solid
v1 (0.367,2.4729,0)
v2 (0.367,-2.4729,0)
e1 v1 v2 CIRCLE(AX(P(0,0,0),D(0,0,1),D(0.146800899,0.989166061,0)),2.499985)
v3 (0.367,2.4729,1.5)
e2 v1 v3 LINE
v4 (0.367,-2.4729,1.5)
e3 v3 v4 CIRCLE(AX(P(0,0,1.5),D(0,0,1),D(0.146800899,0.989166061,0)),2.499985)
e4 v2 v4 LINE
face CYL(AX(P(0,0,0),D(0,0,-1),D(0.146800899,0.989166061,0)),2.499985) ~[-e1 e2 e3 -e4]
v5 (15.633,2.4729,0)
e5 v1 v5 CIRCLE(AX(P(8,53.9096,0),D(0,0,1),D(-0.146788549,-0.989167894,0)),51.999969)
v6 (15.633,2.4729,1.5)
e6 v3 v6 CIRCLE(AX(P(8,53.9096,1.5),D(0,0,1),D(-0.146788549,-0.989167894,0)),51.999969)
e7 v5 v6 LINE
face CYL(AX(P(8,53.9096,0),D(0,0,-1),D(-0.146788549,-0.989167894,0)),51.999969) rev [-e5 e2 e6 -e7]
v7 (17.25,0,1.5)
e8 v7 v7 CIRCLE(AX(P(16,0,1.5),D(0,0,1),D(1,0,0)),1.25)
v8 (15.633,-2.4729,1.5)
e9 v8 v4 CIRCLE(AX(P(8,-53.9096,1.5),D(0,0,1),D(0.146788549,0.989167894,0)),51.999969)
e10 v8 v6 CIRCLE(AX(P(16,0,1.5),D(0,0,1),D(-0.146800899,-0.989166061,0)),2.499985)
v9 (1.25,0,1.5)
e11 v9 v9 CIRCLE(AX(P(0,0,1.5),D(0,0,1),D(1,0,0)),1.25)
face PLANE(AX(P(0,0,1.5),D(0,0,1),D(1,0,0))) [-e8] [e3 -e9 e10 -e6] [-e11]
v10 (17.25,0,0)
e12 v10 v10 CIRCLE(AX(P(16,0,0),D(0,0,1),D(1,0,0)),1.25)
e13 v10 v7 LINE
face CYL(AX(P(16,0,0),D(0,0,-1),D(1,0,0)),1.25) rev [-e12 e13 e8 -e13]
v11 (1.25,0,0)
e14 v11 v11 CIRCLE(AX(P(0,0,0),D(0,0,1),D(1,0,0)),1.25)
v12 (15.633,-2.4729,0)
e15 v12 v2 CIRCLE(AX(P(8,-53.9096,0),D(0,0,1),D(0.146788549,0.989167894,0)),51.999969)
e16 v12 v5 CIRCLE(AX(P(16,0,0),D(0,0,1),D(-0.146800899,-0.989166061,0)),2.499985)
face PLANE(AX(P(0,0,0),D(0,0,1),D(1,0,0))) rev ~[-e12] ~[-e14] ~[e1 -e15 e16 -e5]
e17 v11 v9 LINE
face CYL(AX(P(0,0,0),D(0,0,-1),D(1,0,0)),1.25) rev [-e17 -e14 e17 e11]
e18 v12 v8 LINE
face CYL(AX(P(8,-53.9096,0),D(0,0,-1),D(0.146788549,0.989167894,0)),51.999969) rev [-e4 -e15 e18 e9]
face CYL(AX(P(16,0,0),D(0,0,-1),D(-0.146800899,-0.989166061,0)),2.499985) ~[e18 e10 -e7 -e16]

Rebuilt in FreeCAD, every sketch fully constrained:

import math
import FreeCAD as App
import Part
import Sketcher
from FreeCAD import Vector

doc = App.newDocument("Part")
body = doc.addObject("PartDesign::Body", "Body")

sketch1 = body.newObject("Sketcher::SketchObject", "Sketch")
sketch1.AttachmentSupport = (doc.getObject("XY_Plane"), [""])
sketch1.MapMode = "FlatFace"
sketch1.addGeometry([
    Part.ArcOfCircle(Part.Circle(Vector(8, 53.9, 0), Vector(0, 0, 1), 52), math.radians(-98.44), math.radians(-81.56)),
    Part.ArcOfCircle(Part.Circle(Vector(0, 0, 0), Vector(0, 0, 1), 2.5), math.radians(82), math.radians(278)),
    Part.ArcOfCircle(Part.Circle(Vector(8, -53.9, 0), Vector(0, 0, 1), 52), math.radians(81.56), math.radians(98.44)),
    Part.ArcOfCircle(Part.Circle(Vector(16, 0, 0), Vector(0, 0, 1), 2.5), math.radians(-98), math.radians(98)),
    Part.Circle(Vector(0, 0, 0), Vector(0, 0, 1), 1.2),
    Part.Circle(Vector(16, 0, 0), Vector(0, 0, 1), 1.2),
], False)
sketch1.addConstraint([
    Sketcher.Constraint("Tangent", 0, 1, 1, 1),
    Sketcher.Constraint("Tangent", 1, 2, 2, 2),
    Sketcher.Constraint("Tangent", 2, 1, 3, 1),
    Sketcher.Constraint("Tangent", 3, 2, 0, 2),
    Sketcher.Constraint("Coincident", 1, 3, -1, 1),
    Sketcher.Constraint("Coincident", 4, 3, -1, 1),
    Sketcher.Constraint("Coincident", 5, 3, 3, 3),
    Sketcher.Constraint("Equal", 0, 2),
    Sketcher.Constraint("Equal", 1, 3),
    Sketcher.Constraint("Equal", 4, 5),
    Sketcher.Constraint("PointOnObject", 3, 3, -1),
    Sketcher.Constraint("Radius", 0, 52.0),
    Sketcher.Constraint("Diameter", 4, 2.5),
    Sketcher.Constraint("Radius", 1, 2.5),
    Sketcher.Constraint("DistanceX", -1, 1, 3, 3, 16.0),
])
pad1 = body.newObject("PartDesign::Pad", "Pad")
pad1.Profile = sketch1
pad1.Length = 1.5

doc.recompute()
